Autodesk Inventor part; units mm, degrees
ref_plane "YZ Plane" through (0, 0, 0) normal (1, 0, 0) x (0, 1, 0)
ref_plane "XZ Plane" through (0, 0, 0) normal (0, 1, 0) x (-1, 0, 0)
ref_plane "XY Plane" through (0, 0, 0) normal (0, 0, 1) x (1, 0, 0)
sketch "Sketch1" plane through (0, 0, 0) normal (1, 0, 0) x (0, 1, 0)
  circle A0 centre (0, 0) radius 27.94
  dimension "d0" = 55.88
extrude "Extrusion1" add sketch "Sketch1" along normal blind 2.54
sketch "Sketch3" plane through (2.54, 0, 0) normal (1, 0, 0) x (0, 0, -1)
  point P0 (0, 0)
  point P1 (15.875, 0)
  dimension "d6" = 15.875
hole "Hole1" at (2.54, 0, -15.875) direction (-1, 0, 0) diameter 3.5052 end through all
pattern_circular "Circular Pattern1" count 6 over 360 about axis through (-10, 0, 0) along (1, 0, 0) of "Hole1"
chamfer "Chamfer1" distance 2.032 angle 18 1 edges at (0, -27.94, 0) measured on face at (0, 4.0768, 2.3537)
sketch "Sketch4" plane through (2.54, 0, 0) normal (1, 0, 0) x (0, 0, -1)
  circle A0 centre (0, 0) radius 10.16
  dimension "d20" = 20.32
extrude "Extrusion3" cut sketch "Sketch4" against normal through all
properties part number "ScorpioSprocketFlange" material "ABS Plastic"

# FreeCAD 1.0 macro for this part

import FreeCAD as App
import Part
import Sketcher
Q = App.Units.Quantity


def edges_at(feature, points):
    """Names of the edges that pass closest to the given points."""
    edges = feature.Shape.Edges
    near = lambda p: min(range(len(edges)), key=lambda i: edges[i].distToShape(Part.Vertex(*p))[0])
    return sorted({f"Edge{near(p) + 1}" for p in points})

doc = App.newDocument("Part")
body = doc.addObject("PartDesign::Body", "Body")

# Sketch on YZ plane
sketch1 = doc.addObject("Sketcher::SketchObject", "Sketch")
body.addObject(sketch1)
sketch1.AttachmentSupport = (doc.YZ_Plane, [""])
sketch1.MapMode = "FlatFace"
sketch1.addGeometry(Part.Circle(App.Vector(0, 0, 0), App.Vector(0, 0, 1), 27.94), False)
sketch1.addConstraint([
    Sketcher.Constraint("Coincident", 0, 3, -1, 1),
    Sketcher.Constraint("Diameter", 0, Q("2.2 in")),
])
pad1 = doc.addObject("PartDesign::Pad", "Pad")
body.addObject(pad1)
pad1.Profile = sketch1
pad1.Length = Q("0.1 in")

# Sketch on YZ plane
sketch2 = doc.addObject("Sketcher::SketchObject", "Sketch001")
body.addObject(sketch2)
sketch2.AttachmentSupport = (doc.YZ_Plane, [""])
sketch2.MapMode = "FlatFace"
sketch2.AttachmentOffset = App.Placement(App.Vector(0, 0, 0.1 * 25.4), App.Rotation())
sketch2.addGeometry(Part.Circle(App.Vector(0, -15.875, 0), App.Vector(0, 0, 1), 1.7526), False)
sketch2.addConstraint([
    Sketcher.Constraint("PointOnObject", 0, 3, -2),
    Sketcher.Constraint("Diameter", 0, Q("0.138 in")),
    Sketcher.Constraint("DistanceY", 0, 3, -1, 1, Q("0.625 in")),
])
doc.recompute()
hole = doc.addObject("PartDesign::Hole", "Hole")
body.addObject(hole)
hole.Profile = sketch2
hole.ThreadType = "None"
hole.Diameter = Q("0.138 in")
hole.DepthType = "ThroughAll"
doc.recompute()

polarpattern = doc.addObject("PartDesign::PolarPattern", "PolarPattern")
body.addObject(polarpattern)
polarpattern.Originals = [hole]
polarpattern.Axis = (doc.X_Axis, [""])
polarpattern.Angle = 360
polarpattern.Occurrences = 6
body.Tip = polarpattern
doc.recompute()

chamfer = doc.addObject("PartDesign::Chamfer", "Chamfer")
body.addObject(chamfer)
chamfer.Base = (polarpattern, edges_at(polarpattern, [(0, -27.94, 0)]))
chamfer.ChamferType = "Distance and Angle"
chamfer.Size = Q("0.08 in")
chamfer.Angle = 18
chamfer.FlipDirection = True

# Sketch on YZ plane
sketch3 = doc.addObject("Sketcher::SketchObject", "Sketch002")
body.addObject(sketch3)
sketch3.AttachmentSupport = (doc.YZ_Plane, [""])
sketch3.MapMode = "FlatFace"
sketch3.AttachmentOffset = App.Placement(App.Vector(0, 0, 0.1 * 25.4), App.Rotation())
sketch3.addGeometry(Part.Circle(App.Vector(0, 0, 0), App.Vector(0, 0, 1), 10.16), False)
sketch3.addConstraint([
    Sketcher.Constraint("Coincident", 0, 3, -1, 1),
    Sketcher.Constraint("Diameter", 0, Q("0.8 in")),
])
pocket1 = doc.addObject("PartDesign::Pocket", "Pocket")
body.addObject(pocket1)
pocket1.Profile = sketch3
pocket1.Type = "ThroughAll"

doc.recompute()
